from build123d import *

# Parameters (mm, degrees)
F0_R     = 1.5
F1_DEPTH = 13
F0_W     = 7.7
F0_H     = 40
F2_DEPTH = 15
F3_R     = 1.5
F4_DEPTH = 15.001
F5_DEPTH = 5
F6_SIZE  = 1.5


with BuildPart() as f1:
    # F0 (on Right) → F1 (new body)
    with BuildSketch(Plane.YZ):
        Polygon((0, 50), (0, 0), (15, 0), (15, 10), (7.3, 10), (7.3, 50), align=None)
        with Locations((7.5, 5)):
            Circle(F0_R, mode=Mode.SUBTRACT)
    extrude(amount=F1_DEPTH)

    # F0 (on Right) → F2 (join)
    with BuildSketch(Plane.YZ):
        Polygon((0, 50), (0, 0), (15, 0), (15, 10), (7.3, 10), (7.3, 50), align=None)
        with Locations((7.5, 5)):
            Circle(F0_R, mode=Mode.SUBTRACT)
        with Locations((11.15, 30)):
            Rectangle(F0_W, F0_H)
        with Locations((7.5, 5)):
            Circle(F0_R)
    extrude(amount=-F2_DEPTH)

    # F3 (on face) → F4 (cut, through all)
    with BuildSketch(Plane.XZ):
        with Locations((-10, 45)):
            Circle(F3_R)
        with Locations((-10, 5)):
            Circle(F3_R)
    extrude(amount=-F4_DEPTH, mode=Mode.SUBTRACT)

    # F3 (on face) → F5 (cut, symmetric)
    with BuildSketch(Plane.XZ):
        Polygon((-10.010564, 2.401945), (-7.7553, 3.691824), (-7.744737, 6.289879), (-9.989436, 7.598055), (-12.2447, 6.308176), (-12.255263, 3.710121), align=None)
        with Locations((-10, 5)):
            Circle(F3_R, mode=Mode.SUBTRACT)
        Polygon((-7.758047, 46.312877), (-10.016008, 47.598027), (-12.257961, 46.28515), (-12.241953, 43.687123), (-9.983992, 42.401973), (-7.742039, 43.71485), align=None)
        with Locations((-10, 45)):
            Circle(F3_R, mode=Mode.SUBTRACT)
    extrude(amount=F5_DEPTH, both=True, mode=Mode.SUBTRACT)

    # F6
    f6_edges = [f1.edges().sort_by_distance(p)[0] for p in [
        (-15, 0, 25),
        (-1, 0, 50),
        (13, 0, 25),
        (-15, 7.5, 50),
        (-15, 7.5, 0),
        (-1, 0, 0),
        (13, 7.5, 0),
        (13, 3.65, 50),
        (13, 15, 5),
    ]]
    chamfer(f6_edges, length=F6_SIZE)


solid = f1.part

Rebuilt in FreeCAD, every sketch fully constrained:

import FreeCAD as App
import Part
import Sketcher
Q = App.Units.Quantity


def edges_at(feature, points):
    """Names of the edges that pass closest to the given points."""
    edges = feature.Shape.Edges
    near = lambda p: min(range(len(edges)), key=lambda i: edges[i].distToShape(Part.Vertex(*p))[0])
    return sorted({f"Edge{near(p) + 1}" for p in points})

doc = App.newDocument("Part")
params = doc.addObject("Spreadsheet::Sheet", "Params")
for row, (alias, value) in enumerate([
    ("sketch1_diameter", "3 mm"),
    ("sketch1_width", "15 mm"),
    ("sketch1_height", "50 mm"),
    ("sketch1_height2", "10 mm"),
    ("sketch1_width2", "7.7 mm"),
    ("pad1_length", "13 mm"),
    ("sketch2_width", "15 mm"),
    ("sketch2_height", "50 mm"),
    ("pad2_length", "15 mm"),
    ("sketch3_diameter", "3 mm"),
    ("sketch4_diameter", "3 mm"),
    ("pocket2_length", "10 mm"),
    ("chamfer_size", "1.5 mm"),
], start=1):
    params.set(f"A{row}", alias)
    params.set(f"B{row}", "=" + value)
    params.setAlias(f"B{row}", alias)

body = doc.addObject("PartDesign::Body", "Body")

sketch1 = body.newObject("Sketcher::SketchObject", "Sketch")
sketch1.AttachmentSupport = (doc.getObject("YZ_Plane"), [""])
sketch1.MapMode = "FlatFace"
sketch1.addGeometry([
    Part.LineSegment(App.Vector(0, 50, 0), App.Vector(0, 0, 0)),
    Part.LineSegment(App.Vector(0, 0, 0), App.Vector(15, 0, 0)),
    Part.LineSegment(App.Vector(15, 0, 0), App.Vector(15, 10, 0)),
    Part.LineSegment(App.Vector(15, 10, 0), App.Vector(7.3, 10, 0)),
    Part.LineSegment(App.Vector(7.3, 10, 0), App.Vector(7.3, 50, 0)),
    Part.LineSegment(App.Vector(7.3, 50, 0), App.Vector(0, 50, 0)),
    Part.Circle(App.Vector(7.5, 5, 0), App.Vector(0, 0, 1), 1.5),
], False)
sketch1.addConstraint([
    Sketcher.Constraint("Coincident", 0, 2, 1, 1),
    Sketcher.Constraint("Coincident", 1, 2, 2, 1),
    Sketcher.Constraint("Coincident", 2, 2, 3, 1),
    Sketcher.Constraint("Coincident", 3, 2, 4, 1),
    Sketcher.Constraint("Coincident", 4, 2, 5, 1),
    Sketcher.Constraint("Coincident", 5, 2, 0, 1),
    Sketcher.Constraint("Vertical", 0),
    Sketcher.Constraint("Horizontal", 1),
    Sketcher.Constraint("Vertical", 2),
    Sketcher.Constraint("Horizontal", 3),
    Sketcher.Constraint("Vertical", 4),
    Sketcher.Constraint("Horizontal", 5),
    Sketcher.Constraint("Coincident", 0, 2, -1, 1),
    Sketcher.Constraint("Diameter", 6, Q("3 mm")),
    Sketcher.Constraint("DistanceX", 1, 1, 1, 2, Q("15 mm")),
    Sketcher.Constraint("DistanceY", 0, 2, 0, 1, Q("50 mm")),
    Sketcher.Constraint("DistanceY", 2, 1, 2, 2, Q("10 mm")),
    Sketcher.Constraint("DistanceX", 3, 2, 3, 1, Q("7.7 mm")),
    Sketcher.Constraint("DistanceY", -1, 1, 6, 3, Q("5 mm")),
    Sketcher.Constraint("DistanceX", -1, 1, 6, 3, Q("7.5 mm")),
])
sketch1.setExpression("Constraints[13]", "Params.sketch1_diameter")
sketch1.setExpression("Constraints[14]", "Params.sketch1_width")
sketch1.setExpression("Constraints[15]", "Params.sketch1_height")
sketch1.setExpression("Constraints[16]", "Params.sketch1_height2")
sketch1.setExpression("Constraints[17]", "Params.sketch1_width2")
pad1 = body.newObject("PartDesign::Pad", "Pad")
pad1.Profile = sketch1
pad1.setExpression("Length", "Params.pad1_length")

sketch2 = body.newObject("Sketcher::SketchObject", "Sketch001")
sketch2.AttachmentSupport = (doc.getObject("YZ_Plane"), [""])
sketch2.MapMode = "FlatFace"
sketch2.addGeometry([
    Part.LineSegment(App.Vector(0, 50, 0), App.Vector(0, 0, 0)),
    Part.LineSegment(App.Vector(0, 0, 0), App.Vector(15, 0, 0)),
    Part.LineSegment(App.Vector(15, 0, 0), App.Vector(15, 50, 0)),
    Part.LineSegment(App.Vector(15, 50, 0), App.Vector(0, 50, 0)),
], False)
sketch2.addConstraint([
    Sketcher.Constraint("Coincident", 0, 2, 1, 1),
    Sketcher.Constraint("Coincident", 1, 2, 2, 1),
    Sketcher.Constraint("Coincident", 2, 2, 3, 1),
    Sketcher.Constraint("Coincident", 3, 2, 0, 1),
    Sketcher.Constraint("Vertical", 0),
    Sketcher.Constraint("Horizontal", 1),
    Sketcher.Constraint("Vertical", 2),
    Sketcher.Constraint("Horizontal", 3),
    Sketcher.Constraint("Coincident", 0, 2, -1, 1),
    Sketcher.Constraint("DistanceX", 1, 1, 1, 2, Q("15 mm")),
    Sketcher.Constraint("DistanceY", 0, 2, 0, 1, Q("50 mm")),
])
sketch2.setExpression("Constraints[9]", "Params.sketch2_width")
sketch2.setExpression("Constraints[10]", "Params.sketch2_height")
pad2 = body.newObject("PartDesign::Pad", "Pad001")
pad2.Profile = sketch2
pad2.setExpression("Length", "Params.pad2_length")
pad2.Reversed = True

sketch3 = body.newObject("Sketcher::SketchObject", "Sketch002")
sketch3.AttachmentSupport = (doc.getObject("XZ_Plane"), [""])
sketch3.MapMode = "FlatFace"
sketch3.addGeometry([
    Part.Circle(App.Vector(-10, 45, 0), App.Vector(0, 0, 1), 1.5),
    Part.Circle(App.Vector(-10, 5, 0), App.Vector(0, 0, 1), 1.5),
], False)
sketch3.addConstraint([
    Sketcher.Constraint("Equal", 0, 1),
    Sketcher.Constraint("Vertical", 0, 3, 1, 3),
    Sketcher.Constraint("Diameter", 0, Q("3 mm")),
    Sketcher.Constraint("DistanceX", 0, 3, -1, 1, Q("10 mm")),
    Sketcher.Constraint("DistanceY", -1, 1, 0, 3, Q("45 mm")),
    Sketcher.Constraint("DistanceY", -1, 1, 1, 3, Q("5 mm")),
])
sketch3.setExpression("Constraints[2]", "Params.sketch3_diameter")
pocket1 = body.newObject("PartDesign::Pocket", "Pocket")
pocket1.Profile = sketch3
pocket1.Type = "ThroughAll"

sketch4 = body.newObject("Sketcher::SketchObject", "Sketch003")
sketch4.AttachmentSupport = (doc.getObject("XZ_Plane"), [""])
sketch4.MapMode = "FlatFace"
sketch4.addGeometry([
    Part.LineSegment(App.Vector(-10.010564, 2.401945, 0), App.Vector(-7.7553, 3.691824, 0)),
    Part.LineSegment(App.Vector(-7.7553, 3.691824, 0), App.Vector(-7.744737, 6.289879, 0)),
    Part.LineSegment(App.Vector(-7.744737, 6.289879, 0), App.Vector(-9.989436, 7.598055, 0)),
    Part.LineSegment(App.Vector(-9.989436, 7.598055, 0), App.Vector(-12.2447, 6.308176, 0)),
    Part.LineSegment(App.Vector(-12.2447, 6.308176, 0), App.Vector(-12.255263, 3.710121, 0)),
    Part.LineSegment(App.Vector(-12.255263, 3.710121, 0), App.Vector(-10.010564, 2.401945, 0)),
    Part.Circle(App.Vector(-10, 5, 0), App.Vector(0, 0, 1), 1.5),
    Part.LineSegment(App.Vector(-7.758047, 46.312877, 0), App.Vector(-10.016008, 47.598027, 0)),
    Part.LineSegment(App.Vector(-10.016008, 47.598027, 0), App.Vector(-12.257961, 46.28515, 0)),
    Part.LineSegment(App.Vector(-12.257961, 46.28515, 0), App.Vector(-12.241953, 43.687123, 0)),
    Part.LineSegment(App.Vector(-12.241953, 43.687123, 0), App.Vector(-9.983992, 42.401973, 0)),
    Part.LineSegment(App.Vector(-9.983992, 42.401973, 0), App.Vector(-7.742039, 43.71485, 0)),
    Part.LineSegment(App.Vector(-7.742039, 43.71485, 0), App.Vector(-7.758047, 46.312877, 0)),
    Part.Circle(App.Vector(-10, 45, 0), App.Vector(0, 0, 1), 1.5),
], False)
sketch4.addConstraint([
    Sketcher.Constraint("Coincident", 0, 2, 1, 1),
    Sketcher.Constraint("Coincident", 1, 2, 2, 1),
    Sketcher.Constraint("Coincident", 2, 2, 3, 1),
    Sketcher.Constraint("Coincident", 3, 2, 4, 1),
    Sketcher.Constraint("Coincident", 4, 2, 5, 1),
    Sketcher.Constraint("Coincident", 5, 2, 0, 1),
    Sketcher.Constraint("Coincident", 7, 2, 8, 1),
    Sketcher.Constraint("Coincident", 8, 2, 9, 1),
    Sketcher.Constraint("Coincident", 9, 2, 10, 1),
    Sketcher.Constraint("Coincident", 10, 2, 11, 1),
    Sketcher.Constraint("Coincident", 11, 2, 12, 1),
    Sketcher.Constraint("Coincident", 12, 2, 7, 1),
    Sketcher.Constraint("Equal", 6, 13),
    Sketcher.Constraint("Parallel", 0, 3),
    Sketcher.Constraint("Parallel", 1, 4),
    Sketcher.Constraint("Parallel", 2, 5),
    Sketcher.Constraint("Parallel", 7, 10),
    Sketcher.Constraint("Parallel", 8, 11),
    Sketcher.Constraint("Parallel", 9, 12),
    Sketcher.Constraint("Vertical", 6, 3, 13, 3),
    Sketcher.Constraint("Equal", 0, 1),
    Sketcher.Constraint("Equal", 1, 2),
    Sketcher.Constraint("Equal", 2, 3),
    Sketcher.Constraint("Equal", 5, 7),
    Sketcher.Constraint("Equal", 7, 8),
    Sketcher.Constraint("Equal", 8, 9),
    Sketcher.Constraint("Equal", 9, 10),
    Sketcher.Constraint("Diameter", 6, Q("3 mm")),
    Sketcher.Constraint("DistanceX", 6, 3, -1, 1, Q("10 mm")),
    Sketcher.Constraint("DistanceY", -1, 1, 6, 3, Q("5 mm")),
    Sketcher.Constraint("DistanceY", -1, 1, 13, 3, Q("45 mm")),
    Sketcher.Constraint("DistanceX", 0, 2, -1, 1, Q("7.7553 mm")),
    Sketcher.Constraint("DistanceX", 3, 2, -1, 1, Q("12.2447 mm")),
    Sketcher.Constraint("DistanceX", 2, 2, 1, 2, Q("2.244699 mm")),
    Sketcher.Constraint("DistanceY", 11, 2, 8, 2, Q("2.5703 mm")),
    Sketcher.Constraint("DistanceY", -1, 1, 1, 2, Q("6.289879 mm")),
    Sketcher.Constraint("DistanceY", -1, 1, 4, 2, Q("3.710121 mm")),
    Sketcher.Constraint("DistanceX", 8, 2, -1, 1, Q("12.257961 mm")),
    Sketcher.Constraint("DistanceY", -1, 1, 8, 2, Q("46.28515 mm")),
    Sketcher.Constraint("DistanceX", 11, 2, -1, 1, Q("7.742039 mm")),
    Sketcher.Constraint("DistanceY", 0, 2, 2, 2, Q("3.906231 mm")),
    Sketcher.Constraint("DistanceX", 7, 2, 2, 2, Q("0.026572 mm")),
])
sketch4.setExpression("Constraints[27]", "Params.sketch4_diameter")
pocket2 = body.newObject("PartDesign::Pocket", "Pocket001")
pocket2.Profile = sketch4
pocket2.setExpression("Length", "Params.pocket2_length")
pocket2.Midplane = True
doc.recompute()

chamfer = body.newObject("PartDesign::Chamfer", "Chamfer")
chamfer.Base = (pocket2, edges_at(pocket2, [
    (-15, 0, 25),
    (-1, 0, 50),
    (13, 0, 25),
    (-15, 7.5, 50),
    (-15, 7.5, 0),
    (-1, 0, 0),
    (13, 7.5, 0),
    (13, 3.65, 50),
    (13, 15, 5),
]))
chamfer.setExpression("Size", "Params.chamfer_size")

doc.recompute()
